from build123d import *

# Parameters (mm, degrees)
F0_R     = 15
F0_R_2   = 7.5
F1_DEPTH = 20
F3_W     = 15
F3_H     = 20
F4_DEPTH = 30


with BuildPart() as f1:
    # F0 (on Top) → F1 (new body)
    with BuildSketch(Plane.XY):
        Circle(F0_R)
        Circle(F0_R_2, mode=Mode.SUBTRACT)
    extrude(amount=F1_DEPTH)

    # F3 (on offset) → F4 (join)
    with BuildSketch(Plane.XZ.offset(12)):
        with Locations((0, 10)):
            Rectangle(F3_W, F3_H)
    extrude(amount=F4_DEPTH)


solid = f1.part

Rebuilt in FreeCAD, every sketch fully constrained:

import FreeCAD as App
import Part
import Sketcher
from FreeCAD import Vector
Q = App.Units.Quantity

doc = App.newDocument("Part")
body = doc.addObject("PartDesign::Body", "Body")

sketch1 = body.newObject("Sketcher::SketchObject", "Sketch")
sketch1.AttachmentSupport = (doc.getObject("XY_Plane"), [""])
sketch1.MapMode = "FlatFace"
sketch1.addGeometry([
    Part.Circle(Vector(0, 0, 0), Vector(0, 0, 1), 15),
    Part.Circle(Vector(0, 0, 0), Vector(0, 0, 1), 7.5),
], False)
sketch1.addConstraint([
    Sketcher.Constraint("Coincident", 0, 3, -1, 1),
    Sketcher.Constraint("Coincident", 1, 3, -1, 1),
    Sketcher.Constraint("Diameter", 0, Q("30 mm")),
    Sketcher.Constraint("Diameter", 1, Q("15 mm")),
])
pad1 = body.newObject("PartDesign::Pad", "Pad")
pad1.Profile = sketch1
pad1.Length = 20

sketch2 = body.newObject("Sketcher::SketchObject", "Sketch001")
sketch2.AttachmentSupport = (doc.getObject("XZ_Plane"), [""])
sketch2.MapMode = "FlatFace"
sketch2.AttachmentOffset = App.Placement(Vector(0, 0, 12), App.Rotation())
sketch2.addGeometry([
    Part.LineSegment(Vector(-7.5, 20, 0), Vector(-7.5, 0, 0)),
    Part.LineSegment(Vector(-7.5, 0, 0), Vector(7.5, 0, 0)),
    Part.LineSegment(Vector(7.5, 0, 0), Vector(7.5, 20, 0)),
    Part.LineSegment(Vector(7.5, 20, 0), Vector(-7.5, 20, 0)),
], False)
sketch2.addConstraint([
    Sketcher.Constraint("Coincident", 0, 2, 1, 1),
    Sketcher.Constraint("Coincident", 1, 2, 2, 1),
    Sketcher.Constraint("Coincident", 2, 2, 3, 1),
    Sketcher.Constraint("Coincident", 3, 2, 0, 1),
    Sketcher.Constraint("Vertical", 0),
    Sketcher.Constraint("Horizontal", 1),
    Sketcher.Constraint("Vertical", 2),
    Sketcher.Constraint("Horizontal", 3),
    Sketcher.Constraint("Symmetric", 0, 2, 1, 2, -1, 1),
    Sketcher.Constraint("DistanceX", 1, 1, 1, 2, Q("15 mm")),
    Sketcher.Constraint("DistanceY", 0, 2, 0, 1, Q("20 mm")),
])
pad2 = body.newObject("PartDesign::Pad", "Pad001")
pad2.Profile = sketch2
pad2.Length = 30

doc.recompute()
